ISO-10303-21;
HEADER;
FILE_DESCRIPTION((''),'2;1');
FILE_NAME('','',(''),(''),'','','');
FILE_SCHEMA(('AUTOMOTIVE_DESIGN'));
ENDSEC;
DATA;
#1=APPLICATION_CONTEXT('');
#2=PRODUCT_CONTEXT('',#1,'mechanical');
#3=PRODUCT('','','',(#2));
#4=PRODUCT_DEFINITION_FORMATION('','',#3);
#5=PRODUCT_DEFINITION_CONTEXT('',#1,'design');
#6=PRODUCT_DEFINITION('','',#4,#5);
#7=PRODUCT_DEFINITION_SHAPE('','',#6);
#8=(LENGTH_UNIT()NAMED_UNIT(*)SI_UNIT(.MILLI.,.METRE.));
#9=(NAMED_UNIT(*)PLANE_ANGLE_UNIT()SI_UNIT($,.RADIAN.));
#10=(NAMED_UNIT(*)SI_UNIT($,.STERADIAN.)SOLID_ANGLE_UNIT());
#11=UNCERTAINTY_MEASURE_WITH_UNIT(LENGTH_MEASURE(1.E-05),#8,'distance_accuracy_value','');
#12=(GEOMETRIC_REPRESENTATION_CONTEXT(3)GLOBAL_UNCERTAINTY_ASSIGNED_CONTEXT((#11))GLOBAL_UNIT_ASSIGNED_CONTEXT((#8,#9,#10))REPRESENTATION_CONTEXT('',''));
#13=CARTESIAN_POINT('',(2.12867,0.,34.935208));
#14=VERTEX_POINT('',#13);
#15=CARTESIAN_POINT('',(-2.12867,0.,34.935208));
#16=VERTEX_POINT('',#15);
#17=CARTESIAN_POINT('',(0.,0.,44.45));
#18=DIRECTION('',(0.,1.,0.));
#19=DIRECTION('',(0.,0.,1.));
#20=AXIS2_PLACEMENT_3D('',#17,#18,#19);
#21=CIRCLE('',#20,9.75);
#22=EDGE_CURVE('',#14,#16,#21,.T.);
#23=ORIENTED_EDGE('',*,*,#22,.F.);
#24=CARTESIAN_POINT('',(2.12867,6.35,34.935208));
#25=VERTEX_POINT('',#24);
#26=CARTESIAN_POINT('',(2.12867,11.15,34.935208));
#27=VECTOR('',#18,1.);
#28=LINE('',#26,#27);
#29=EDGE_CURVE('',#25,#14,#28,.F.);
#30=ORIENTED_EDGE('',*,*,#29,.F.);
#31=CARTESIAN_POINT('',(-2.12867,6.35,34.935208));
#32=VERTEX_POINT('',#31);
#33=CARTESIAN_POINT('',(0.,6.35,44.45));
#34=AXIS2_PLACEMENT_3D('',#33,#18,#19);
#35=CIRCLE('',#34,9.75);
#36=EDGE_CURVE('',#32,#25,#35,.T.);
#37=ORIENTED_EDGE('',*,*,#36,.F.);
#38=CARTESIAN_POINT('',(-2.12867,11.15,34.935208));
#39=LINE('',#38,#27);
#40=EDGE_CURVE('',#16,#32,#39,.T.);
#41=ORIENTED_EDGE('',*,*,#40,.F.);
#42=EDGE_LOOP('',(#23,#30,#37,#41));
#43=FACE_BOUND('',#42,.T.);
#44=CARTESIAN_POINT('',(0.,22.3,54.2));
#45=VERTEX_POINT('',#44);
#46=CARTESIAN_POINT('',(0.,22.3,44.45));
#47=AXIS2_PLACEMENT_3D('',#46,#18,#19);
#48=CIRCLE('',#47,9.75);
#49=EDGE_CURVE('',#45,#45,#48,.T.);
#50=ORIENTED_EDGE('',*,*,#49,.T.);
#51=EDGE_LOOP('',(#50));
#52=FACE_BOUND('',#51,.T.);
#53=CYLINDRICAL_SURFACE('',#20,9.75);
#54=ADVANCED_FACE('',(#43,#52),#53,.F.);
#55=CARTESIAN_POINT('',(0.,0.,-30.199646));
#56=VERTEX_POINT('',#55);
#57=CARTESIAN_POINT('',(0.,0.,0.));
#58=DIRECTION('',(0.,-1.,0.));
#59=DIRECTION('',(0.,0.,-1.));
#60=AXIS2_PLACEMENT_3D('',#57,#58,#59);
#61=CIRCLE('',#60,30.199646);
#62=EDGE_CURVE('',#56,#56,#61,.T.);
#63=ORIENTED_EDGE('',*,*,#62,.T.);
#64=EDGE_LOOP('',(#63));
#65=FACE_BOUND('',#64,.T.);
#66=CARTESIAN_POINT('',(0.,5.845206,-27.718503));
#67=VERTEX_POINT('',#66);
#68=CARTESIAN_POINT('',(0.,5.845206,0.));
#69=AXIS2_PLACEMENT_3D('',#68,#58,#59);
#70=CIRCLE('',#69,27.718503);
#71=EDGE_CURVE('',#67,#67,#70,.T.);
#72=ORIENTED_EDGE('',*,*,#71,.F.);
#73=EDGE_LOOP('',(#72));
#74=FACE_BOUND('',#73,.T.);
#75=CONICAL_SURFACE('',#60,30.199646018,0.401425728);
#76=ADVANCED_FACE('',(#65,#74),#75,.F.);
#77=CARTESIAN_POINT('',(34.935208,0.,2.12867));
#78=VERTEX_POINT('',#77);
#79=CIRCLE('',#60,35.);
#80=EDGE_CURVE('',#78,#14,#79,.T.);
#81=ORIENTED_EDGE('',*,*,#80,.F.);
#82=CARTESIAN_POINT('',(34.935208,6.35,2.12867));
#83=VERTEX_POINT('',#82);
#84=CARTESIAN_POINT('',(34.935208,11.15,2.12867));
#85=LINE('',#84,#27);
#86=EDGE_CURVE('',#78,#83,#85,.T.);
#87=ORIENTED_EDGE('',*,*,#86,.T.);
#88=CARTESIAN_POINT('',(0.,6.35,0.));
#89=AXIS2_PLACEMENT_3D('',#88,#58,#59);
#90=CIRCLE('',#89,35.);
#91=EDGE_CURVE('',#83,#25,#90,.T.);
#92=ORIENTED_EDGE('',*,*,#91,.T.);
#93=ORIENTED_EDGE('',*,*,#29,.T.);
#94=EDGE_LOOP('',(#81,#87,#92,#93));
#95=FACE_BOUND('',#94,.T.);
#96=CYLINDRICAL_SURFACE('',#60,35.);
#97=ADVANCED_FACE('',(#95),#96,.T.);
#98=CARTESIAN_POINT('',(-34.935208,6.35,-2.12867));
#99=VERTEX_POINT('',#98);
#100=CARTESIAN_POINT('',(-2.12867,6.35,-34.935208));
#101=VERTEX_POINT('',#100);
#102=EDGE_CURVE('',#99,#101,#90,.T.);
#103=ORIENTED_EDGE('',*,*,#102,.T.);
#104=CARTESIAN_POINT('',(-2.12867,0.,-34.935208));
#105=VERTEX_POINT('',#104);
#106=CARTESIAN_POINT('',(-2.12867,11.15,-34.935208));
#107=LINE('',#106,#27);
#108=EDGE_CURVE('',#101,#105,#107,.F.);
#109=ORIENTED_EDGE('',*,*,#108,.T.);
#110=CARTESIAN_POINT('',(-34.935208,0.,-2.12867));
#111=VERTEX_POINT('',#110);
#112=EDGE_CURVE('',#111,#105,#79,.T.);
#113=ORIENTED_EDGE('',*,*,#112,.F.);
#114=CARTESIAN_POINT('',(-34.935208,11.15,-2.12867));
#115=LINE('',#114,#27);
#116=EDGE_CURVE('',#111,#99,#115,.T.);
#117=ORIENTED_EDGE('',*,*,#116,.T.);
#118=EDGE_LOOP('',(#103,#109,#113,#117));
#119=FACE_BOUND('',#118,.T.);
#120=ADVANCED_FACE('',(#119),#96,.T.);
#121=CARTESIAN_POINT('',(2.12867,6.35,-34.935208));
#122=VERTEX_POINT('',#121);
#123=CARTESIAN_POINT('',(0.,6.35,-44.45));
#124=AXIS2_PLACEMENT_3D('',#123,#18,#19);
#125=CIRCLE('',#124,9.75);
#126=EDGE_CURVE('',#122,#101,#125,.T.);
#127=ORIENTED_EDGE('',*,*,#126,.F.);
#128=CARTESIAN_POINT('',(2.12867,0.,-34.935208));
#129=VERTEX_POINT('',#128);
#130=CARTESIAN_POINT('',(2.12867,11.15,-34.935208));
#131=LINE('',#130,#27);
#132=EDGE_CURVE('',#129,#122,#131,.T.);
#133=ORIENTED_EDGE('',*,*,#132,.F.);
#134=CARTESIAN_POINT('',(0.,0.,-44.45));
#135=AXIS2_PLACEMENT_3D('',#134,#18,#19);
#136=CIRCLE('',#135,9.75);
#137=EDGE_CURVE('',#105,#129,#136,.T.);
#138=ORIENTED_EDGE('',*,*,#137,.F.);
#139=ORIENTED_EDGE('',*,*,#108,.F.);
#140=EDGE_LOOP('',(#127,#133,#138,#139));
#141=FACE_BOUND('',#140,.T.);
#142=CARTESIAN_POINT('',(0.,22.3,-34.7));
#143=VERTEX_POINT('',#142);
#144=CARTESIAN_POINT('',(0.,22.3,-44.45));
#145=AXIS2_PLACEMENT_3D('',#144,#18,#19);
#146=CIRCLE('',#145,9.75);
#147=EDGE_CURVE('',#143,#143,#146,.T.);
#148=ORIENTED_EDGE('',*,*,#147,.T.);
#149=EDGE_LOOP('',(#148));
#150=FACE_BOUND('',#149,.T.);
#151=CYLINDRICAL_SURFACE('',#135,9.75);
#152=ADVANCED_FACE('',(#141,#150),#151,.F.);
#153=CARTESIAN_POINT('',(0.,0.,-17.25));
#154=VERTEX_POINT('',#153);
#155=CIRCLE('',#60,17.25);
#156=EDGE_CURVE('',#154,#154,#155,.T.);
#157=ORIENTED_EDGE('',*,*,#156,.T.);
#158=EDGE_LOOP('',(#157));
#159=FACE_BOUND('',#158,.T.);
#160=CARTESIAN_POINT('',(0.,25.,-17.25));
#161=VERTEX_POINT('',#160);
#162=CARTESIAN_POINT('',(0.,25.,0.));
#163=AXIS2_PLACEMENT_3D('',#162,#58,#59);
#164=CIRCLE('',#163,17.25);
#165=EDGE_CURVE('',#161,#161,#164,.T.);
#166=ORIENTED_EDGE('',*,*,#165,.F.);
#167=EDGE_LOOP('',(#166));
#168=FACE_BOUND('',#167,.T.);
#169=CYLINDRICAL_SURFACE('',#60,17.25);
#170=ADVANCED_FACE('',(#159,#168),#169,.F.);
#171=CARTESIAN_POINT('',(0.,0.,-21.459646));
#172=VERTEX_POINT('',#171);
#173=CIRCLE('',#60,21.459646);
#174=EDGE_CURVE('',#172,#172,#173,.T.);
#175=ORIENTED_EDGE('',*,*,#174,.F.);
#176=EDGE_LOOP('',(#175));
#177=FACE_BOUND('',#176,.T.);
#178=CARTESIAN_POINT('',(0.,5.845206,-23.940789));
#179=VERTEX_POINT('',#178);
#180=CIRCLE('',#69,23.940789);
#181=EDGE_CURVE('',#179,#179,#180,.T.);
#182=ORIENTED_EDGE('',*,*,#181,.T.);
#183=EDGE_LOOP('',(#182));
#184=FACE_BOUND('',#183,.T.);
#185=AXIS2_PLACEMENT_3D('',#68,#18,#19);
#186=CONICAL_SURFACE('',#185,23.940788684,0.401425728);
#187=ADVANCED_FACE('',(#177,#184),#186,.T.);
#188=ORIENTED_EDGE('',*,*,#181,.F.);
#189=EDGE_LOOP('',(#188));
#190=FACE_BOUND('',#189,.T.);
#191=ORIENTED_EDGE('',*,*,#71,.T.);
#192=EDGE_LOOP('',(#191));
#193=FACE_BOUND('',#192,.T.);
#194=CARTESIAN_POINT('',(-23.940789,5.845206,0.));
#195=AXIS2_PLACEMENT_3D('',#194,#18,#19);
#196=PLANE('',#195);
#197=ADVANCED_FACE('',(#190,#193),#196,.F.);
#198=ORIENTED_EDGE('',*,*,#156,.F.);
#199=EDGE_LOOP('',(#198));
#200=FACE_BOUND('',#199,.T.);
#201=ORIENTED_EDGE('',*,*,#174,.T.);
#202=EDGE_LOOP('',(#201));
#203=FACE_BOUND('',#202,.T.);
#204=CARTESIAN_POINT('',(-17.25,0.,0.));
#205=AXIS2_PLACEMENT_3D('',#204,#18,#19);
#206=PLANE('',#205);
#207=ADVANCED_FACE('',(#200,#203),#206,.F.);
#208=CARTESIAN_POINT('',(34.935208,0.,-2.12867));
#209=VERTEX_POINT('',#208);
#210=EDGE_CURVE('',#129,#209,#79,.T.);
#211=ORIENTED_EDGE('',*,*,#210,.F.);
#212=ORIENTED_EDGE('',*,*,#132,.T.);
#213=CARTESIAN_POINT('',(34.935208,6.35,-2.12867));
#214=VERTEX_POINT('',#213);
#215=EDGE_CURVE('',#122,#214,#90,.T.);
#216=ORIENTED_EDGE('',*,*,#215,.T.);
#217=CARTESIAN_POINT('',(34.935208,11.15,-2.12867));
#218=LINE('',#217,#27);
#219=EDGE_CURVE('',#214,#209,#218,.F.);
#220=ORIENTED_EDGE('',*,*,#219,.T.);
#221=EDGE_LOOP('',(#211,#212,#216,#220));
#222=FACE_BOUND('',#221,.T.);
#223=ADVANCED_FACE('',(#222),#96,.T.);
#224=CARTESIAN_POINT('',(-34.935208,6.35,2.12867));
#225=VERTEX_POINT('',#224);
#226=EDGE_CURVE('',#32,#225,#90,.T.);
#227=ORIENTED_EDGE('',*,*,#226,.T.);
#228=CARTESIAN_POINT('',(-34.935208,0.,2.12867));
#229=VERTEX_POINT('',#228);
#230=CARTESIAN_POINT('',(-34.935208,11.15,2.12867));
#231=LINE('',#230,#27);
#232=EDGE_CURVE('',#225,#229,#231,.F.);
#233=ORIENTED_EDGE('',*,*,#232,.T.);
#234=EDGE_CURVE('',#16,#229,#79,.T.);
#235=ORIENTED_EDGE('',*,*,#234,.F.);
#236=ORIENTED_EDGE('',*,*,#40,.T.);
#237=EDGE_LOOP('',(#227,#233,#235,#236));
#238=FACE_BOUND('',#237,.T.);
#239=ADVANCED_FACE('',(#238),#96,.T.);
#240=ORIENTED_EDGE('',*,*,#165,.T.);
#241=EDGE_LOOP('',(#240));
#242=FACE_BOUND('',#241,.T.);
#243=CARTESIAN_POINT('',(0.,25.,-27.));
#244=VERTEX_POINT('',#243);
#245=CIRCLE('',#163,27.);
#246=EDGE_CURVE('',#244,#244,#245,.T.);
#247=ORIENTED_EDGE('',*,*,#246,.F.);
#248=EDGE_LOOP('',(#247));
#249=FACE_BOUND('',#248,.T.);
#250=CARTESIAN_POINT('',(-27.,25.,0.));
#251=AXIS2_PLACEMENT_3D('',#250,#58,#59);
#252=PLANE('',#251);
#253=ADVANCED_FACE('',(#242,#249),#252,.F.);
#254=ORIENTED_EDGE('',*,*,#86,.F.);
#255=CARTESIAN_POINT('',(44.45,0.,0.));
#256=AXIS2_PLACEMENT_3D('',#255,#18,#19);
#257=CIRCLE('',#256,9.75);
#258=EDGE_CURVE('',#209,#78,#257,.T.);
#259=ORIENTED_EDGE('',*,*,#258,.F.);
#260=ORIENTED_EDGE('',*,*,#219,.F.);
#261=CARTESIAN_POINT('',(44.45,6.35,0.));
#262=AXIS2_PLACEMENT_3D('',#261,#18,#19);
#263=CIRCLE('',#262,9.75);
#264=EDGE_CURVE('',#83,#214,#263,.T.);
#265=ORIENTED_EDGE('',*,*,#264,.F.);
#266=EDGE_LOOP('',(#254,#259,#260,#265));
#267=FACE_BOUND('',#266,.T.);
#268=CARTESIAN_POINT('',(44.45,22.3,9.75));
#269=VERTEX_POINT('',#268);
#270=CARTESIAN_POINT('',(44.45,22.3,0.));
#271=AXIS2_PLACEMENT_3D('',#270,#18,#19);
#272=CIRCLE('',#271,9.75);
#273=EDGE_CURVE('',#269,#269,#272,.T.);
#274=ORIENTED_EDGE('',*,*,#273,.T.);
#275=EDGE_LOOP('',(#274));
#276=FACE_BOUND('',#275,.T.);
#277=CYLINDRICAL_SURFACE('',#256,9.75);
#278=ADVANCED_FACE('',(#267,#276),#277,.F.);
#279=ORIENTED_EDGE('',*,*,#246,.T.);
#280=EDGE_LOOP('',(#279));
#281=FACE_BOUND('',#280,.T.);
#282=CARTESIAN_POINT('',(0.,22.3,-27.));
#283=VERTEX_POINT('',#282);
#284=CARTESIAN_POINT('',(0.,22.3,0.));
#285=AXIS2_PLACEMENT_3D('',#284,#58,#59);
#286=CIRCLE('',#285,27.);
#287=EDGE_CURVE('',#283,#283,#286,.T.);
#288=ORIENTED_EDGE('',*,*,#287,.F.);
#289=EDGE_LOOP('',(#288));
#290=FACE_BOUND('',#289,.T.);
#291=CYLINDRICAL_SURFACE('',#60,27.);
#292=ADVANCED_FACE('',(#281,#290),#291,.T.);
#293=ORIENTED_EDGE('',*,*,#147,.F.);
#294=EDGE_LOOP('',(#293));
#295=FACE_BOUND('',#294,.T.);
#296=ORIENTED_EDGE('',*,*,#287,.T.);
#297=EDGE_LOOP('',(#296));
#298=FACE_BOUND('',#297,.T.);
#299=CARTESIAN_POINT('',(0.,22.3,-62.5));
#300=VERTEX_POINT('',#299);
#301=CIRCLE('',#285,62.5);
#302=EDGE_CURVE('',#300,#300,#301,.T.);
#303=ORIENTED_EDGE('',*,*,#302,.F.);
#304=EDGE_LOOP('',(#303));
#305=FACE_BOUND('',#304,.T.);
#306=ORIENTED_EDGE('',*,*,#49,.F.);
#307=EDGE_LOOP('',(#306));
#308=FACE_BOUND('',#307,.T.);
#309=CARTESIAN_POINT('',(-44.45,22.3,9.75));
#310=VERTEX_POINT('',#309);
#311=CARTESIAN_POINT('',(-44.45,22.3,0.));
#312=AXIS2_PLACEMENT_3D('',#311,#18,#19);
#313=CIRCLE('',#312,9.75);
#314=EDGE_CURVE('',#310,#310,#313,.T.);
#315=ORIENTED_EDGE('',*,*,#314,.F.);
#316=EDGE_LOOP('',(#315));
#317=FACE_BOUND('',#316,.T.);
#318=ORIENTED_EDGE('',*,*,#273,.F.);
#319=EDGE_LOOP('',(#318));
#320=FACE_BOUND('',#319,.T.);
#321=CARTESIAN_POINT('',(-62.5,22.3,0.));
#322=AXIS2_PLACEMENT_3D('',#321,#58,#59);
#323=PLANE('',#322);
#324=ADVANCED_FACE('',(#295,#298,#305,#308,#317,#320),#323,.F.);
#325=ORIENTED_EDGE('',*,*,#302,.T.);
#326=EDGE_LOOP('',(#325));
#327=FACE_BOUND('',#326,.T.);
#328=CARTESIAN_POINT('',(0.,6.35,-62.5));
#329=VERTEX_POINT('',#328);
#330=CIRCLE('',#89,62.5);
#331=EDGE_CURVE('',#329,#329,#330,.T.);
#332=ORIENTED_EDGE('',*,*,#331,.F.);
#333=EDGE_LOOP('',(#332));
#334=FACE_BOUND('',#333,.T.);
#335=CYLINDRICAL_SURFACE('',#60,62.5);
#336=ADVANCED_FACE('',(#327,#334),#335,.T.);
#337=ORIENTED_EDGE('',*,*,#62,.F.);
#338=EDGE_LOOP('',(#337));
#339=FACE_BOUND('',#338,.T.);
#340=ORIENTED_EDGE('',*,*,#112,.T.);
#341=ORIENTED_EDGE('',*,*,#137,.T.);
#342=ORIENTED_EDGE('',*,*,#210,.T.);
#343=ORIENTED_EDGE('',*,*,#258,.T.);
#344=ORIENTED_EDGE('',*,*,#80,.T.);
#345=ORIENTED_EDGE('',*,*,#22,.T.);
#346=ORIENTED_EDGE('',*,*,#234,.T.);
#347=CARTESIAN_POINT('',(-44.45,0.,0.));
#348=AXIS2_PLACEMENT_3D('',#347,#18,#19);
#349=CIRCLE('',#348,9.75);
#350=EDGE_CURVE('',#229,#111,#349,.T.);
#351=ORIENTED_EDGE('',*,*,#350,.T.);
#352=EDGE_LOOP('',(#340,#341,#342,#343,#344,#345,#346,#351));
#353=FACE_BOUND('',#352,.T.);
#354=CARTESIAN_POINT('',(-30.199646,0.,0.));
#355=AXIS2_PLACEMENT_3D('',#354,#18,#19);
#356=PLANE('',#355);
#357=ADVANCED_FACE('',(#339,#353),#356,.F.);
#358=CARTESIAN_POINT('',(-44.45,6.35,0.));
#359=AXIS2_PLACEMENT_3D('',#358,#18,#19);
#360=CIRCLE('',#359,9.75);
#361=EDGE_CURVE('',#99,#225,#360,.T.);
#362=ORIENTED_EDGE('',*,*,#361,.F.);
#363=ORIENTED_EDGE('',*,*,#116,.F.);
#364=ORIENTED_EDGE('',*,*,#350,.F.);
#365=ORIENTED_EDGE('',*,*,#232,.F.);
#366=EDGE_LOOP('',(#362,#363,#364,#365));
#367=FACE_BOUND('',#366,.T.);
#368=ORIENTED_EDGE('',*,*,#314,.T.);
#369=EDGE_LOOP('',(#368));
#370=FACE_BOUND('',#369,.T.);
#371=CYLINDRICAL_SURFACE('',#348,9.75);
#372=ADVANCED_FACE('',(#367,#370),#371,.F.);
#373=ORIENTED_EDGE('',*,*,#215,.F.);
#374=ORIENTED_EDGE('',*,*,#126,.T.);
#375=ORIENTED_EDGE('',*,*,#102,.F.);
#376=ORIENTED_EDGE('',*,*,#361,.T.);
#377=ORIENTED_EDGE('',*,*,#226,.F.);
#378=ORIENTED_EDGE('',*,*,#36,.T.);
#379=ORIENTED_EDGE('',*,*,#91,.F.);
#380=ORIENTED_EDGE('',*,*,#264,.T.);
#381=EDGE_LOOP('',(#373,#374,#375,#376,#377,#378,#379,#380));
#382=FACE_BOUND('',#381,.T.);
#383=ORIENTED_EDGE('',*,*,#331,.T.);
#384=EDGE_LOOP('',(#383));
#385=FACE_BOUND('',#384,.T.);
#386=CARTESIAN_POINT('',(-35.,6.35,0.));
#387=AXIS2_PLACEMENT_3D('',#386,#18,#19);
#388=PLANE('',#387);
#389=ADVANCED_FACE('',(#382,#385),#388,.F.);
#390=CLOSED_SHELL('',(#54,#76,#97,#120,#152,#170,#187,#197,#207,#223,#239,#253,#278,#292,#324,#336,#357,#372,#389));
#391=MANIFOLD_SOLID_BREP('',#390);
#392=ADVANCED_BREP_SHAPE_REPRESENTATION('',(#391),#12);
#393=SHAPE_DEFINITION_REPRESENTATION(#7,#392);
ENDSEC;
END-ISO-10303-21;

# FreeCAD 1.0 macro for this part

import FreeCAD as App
import Part
import Sketcher
Q = App.Units.Quantity


def add_polygon(sketch, points):
    """Adds a closed chain of lines whose ends are joined by coincident constraints."""
    first, n = sketch.GeometryCount, len(points)
    for a, b in zip(points, points[1:] + points[:1]):
        sketch.addGeometry(Part.LineSegment(App.Vector(*a, 0), App.Vector(*b, 0)), False)
    for i in range(n):
        sketch.addConstraint(Sketcher.Constraint("Coincident", first + i, 2, first + (i + 1) % n, 1))

doc = App.newDocument("Part")
body = doc.addObject("PartDesign::Body", "Body")

# Sketch on XY plane
sketch1 = body.newObject("Sketcher::SketchObject", "Sketch")
sketch1.AttachmentSupport = (doc.getObject("XY_Plane"), [""])
sketch1.MapMode = "FlatFace"
add_polygon(sketch1, [(-21.5, 0), (-17.2, 0), (-17.2, 25), (-27, 25), (-27, 22.3), (-62.5, 22.3), (-62.5, 6.3), (-35, 6.3), (-35, 0), (-30.2, 0), (-27.7, 5.8), (-23.9, 5.8)])  # lines 0-11
sketch1.addConstraint([
    Sketcher.Constraint("Horizontal", 0),
    Sketcher.Constraint("Vertical", 1),
    Sketcher.Constraint("Horizontal", 2),
    Sketcher.Constraint("Vertical", 3),
    Sketcher.Constraint("Horizontal", 4),
    Sketcher.Constraint("Vertical", 5),
    Sketcher.Constraint("Horizontal", 6),
    Sketcher.Constraint("Vertical", 7),
    Sketcher.Constraint("Horizontal", 8),
    Sketcher.Constraint("Horizontal", 10),
    Sketcher.Constraint("PointOnObject", 0, 2, -1),
    Sketcher.Constraint("PointOnObject", 7, 2, -1),
    Sketcher.Constraint("Equal", 9, 11),
    Sketcher.Constraint("DistanceY", 1, 1, 1, 2, Q("25 mm")),
    Sketcher.Constraint("Angle", 9, Q("67 deg")),
    Sketcher.Constraint("DistanceX", 4, 2, 4, 1, Q("35.5 mm")),
    Sketcher.Constraint("DistanceX", 6, 1, 6, 2, Q("27.5 mm")),
    Sketcher.Constraint("DistanceY", 3, 2, 3, 1, Q("2.7 mm")),
    Sketcher.Constraint("DistanceX", 2, 2, -1, 1, Q("27 mm")),
    Sketcher.Constraint("DistanceX", 2, 2, 2, 1, Q("9.75 mm")),
    Sketcher.Constraint("DistanceY", 5, 2, 5, 1, Q("15.95 mm")),
    Sketcher.Constraint("Distance", 9, Q("6.35 mm")),
    Sketcher.Constraint("DistanceX", 8, 2, 11, 2, Q("8.74 mm")),
    Sketcher.Constraint("DistanceX", 0, 1, 0, 2, Q("4.209646 mm")),
])
revolution = body.newObject("PartDesign::Revolution", "Revolution")
revolution.Profile = sketch1
revolution.ReferenceAxis = (sketch1, ["V_Axis"])
revolution.Angle = 360

# Sketch on XZ plane
sketch2 = body.newObject("Sketcher::SketchObject", "Sketch001")
sketch2.AttachmentSupport = (doc.getObject("XZ_Plane"), [""])
sketch2.MapMode = "FlatFace"
sketch2.AttachmentOffset = App.Placement(App.Vector(0, 0, -22.3), App.Rotation())
sketch2.addGeometry([
    Part.Circle(App.Vector(-44, 0, 0), App.Vector(0, 0, 1), 10),
    Part.Circle(App.Vector(0, -44, 0), App.Vector(0, 0, 1), 10),
    Part.Circle(App.Vector(44, 0, 0), App.Vector(0, 0, 1), 10),
    Part.Circle(App.Vector(0, 44, 0), App.Vector(0, 0, 1), 10),
], False)
sketch2.addConstraint([
    Sketcher.Constraint("Equal", 0, 1),
    Sketcher.Constraint("Equal", 1, 2),
    Sketcher.Constraint("Equal", 2, 3),
    Sketcher.Constraint("Symmetric", 0, 3, 2, 3, -1, 1),
    Sketcher.Constraint("Symmetric", 1, 3, 3, 3, -1, 1),
    Sketcher.Constraint("PointOnObject", 0, 3, -1),
    Sketcher.Constraint("PointOnObject", 1, 3, -2),
    Sketcher.Constraint("Diameter", 0, Q("19.5 mm")),
    Sketcher.Constraint("DistanceX", 0, 3, 2, 3, Q("88.9 mm")),
    Sketcher.Constraint("DistanceY", 1, 3, 3, 3, Q("88.9 mm")),
])
pocket1 = body.newObject("PartDesign::Pocket", "Pocket")
pocket1.Profile = sketch2
pocket1.Type = "ThroughAll"
pocket1.Reversed = True

doc.recompute()
